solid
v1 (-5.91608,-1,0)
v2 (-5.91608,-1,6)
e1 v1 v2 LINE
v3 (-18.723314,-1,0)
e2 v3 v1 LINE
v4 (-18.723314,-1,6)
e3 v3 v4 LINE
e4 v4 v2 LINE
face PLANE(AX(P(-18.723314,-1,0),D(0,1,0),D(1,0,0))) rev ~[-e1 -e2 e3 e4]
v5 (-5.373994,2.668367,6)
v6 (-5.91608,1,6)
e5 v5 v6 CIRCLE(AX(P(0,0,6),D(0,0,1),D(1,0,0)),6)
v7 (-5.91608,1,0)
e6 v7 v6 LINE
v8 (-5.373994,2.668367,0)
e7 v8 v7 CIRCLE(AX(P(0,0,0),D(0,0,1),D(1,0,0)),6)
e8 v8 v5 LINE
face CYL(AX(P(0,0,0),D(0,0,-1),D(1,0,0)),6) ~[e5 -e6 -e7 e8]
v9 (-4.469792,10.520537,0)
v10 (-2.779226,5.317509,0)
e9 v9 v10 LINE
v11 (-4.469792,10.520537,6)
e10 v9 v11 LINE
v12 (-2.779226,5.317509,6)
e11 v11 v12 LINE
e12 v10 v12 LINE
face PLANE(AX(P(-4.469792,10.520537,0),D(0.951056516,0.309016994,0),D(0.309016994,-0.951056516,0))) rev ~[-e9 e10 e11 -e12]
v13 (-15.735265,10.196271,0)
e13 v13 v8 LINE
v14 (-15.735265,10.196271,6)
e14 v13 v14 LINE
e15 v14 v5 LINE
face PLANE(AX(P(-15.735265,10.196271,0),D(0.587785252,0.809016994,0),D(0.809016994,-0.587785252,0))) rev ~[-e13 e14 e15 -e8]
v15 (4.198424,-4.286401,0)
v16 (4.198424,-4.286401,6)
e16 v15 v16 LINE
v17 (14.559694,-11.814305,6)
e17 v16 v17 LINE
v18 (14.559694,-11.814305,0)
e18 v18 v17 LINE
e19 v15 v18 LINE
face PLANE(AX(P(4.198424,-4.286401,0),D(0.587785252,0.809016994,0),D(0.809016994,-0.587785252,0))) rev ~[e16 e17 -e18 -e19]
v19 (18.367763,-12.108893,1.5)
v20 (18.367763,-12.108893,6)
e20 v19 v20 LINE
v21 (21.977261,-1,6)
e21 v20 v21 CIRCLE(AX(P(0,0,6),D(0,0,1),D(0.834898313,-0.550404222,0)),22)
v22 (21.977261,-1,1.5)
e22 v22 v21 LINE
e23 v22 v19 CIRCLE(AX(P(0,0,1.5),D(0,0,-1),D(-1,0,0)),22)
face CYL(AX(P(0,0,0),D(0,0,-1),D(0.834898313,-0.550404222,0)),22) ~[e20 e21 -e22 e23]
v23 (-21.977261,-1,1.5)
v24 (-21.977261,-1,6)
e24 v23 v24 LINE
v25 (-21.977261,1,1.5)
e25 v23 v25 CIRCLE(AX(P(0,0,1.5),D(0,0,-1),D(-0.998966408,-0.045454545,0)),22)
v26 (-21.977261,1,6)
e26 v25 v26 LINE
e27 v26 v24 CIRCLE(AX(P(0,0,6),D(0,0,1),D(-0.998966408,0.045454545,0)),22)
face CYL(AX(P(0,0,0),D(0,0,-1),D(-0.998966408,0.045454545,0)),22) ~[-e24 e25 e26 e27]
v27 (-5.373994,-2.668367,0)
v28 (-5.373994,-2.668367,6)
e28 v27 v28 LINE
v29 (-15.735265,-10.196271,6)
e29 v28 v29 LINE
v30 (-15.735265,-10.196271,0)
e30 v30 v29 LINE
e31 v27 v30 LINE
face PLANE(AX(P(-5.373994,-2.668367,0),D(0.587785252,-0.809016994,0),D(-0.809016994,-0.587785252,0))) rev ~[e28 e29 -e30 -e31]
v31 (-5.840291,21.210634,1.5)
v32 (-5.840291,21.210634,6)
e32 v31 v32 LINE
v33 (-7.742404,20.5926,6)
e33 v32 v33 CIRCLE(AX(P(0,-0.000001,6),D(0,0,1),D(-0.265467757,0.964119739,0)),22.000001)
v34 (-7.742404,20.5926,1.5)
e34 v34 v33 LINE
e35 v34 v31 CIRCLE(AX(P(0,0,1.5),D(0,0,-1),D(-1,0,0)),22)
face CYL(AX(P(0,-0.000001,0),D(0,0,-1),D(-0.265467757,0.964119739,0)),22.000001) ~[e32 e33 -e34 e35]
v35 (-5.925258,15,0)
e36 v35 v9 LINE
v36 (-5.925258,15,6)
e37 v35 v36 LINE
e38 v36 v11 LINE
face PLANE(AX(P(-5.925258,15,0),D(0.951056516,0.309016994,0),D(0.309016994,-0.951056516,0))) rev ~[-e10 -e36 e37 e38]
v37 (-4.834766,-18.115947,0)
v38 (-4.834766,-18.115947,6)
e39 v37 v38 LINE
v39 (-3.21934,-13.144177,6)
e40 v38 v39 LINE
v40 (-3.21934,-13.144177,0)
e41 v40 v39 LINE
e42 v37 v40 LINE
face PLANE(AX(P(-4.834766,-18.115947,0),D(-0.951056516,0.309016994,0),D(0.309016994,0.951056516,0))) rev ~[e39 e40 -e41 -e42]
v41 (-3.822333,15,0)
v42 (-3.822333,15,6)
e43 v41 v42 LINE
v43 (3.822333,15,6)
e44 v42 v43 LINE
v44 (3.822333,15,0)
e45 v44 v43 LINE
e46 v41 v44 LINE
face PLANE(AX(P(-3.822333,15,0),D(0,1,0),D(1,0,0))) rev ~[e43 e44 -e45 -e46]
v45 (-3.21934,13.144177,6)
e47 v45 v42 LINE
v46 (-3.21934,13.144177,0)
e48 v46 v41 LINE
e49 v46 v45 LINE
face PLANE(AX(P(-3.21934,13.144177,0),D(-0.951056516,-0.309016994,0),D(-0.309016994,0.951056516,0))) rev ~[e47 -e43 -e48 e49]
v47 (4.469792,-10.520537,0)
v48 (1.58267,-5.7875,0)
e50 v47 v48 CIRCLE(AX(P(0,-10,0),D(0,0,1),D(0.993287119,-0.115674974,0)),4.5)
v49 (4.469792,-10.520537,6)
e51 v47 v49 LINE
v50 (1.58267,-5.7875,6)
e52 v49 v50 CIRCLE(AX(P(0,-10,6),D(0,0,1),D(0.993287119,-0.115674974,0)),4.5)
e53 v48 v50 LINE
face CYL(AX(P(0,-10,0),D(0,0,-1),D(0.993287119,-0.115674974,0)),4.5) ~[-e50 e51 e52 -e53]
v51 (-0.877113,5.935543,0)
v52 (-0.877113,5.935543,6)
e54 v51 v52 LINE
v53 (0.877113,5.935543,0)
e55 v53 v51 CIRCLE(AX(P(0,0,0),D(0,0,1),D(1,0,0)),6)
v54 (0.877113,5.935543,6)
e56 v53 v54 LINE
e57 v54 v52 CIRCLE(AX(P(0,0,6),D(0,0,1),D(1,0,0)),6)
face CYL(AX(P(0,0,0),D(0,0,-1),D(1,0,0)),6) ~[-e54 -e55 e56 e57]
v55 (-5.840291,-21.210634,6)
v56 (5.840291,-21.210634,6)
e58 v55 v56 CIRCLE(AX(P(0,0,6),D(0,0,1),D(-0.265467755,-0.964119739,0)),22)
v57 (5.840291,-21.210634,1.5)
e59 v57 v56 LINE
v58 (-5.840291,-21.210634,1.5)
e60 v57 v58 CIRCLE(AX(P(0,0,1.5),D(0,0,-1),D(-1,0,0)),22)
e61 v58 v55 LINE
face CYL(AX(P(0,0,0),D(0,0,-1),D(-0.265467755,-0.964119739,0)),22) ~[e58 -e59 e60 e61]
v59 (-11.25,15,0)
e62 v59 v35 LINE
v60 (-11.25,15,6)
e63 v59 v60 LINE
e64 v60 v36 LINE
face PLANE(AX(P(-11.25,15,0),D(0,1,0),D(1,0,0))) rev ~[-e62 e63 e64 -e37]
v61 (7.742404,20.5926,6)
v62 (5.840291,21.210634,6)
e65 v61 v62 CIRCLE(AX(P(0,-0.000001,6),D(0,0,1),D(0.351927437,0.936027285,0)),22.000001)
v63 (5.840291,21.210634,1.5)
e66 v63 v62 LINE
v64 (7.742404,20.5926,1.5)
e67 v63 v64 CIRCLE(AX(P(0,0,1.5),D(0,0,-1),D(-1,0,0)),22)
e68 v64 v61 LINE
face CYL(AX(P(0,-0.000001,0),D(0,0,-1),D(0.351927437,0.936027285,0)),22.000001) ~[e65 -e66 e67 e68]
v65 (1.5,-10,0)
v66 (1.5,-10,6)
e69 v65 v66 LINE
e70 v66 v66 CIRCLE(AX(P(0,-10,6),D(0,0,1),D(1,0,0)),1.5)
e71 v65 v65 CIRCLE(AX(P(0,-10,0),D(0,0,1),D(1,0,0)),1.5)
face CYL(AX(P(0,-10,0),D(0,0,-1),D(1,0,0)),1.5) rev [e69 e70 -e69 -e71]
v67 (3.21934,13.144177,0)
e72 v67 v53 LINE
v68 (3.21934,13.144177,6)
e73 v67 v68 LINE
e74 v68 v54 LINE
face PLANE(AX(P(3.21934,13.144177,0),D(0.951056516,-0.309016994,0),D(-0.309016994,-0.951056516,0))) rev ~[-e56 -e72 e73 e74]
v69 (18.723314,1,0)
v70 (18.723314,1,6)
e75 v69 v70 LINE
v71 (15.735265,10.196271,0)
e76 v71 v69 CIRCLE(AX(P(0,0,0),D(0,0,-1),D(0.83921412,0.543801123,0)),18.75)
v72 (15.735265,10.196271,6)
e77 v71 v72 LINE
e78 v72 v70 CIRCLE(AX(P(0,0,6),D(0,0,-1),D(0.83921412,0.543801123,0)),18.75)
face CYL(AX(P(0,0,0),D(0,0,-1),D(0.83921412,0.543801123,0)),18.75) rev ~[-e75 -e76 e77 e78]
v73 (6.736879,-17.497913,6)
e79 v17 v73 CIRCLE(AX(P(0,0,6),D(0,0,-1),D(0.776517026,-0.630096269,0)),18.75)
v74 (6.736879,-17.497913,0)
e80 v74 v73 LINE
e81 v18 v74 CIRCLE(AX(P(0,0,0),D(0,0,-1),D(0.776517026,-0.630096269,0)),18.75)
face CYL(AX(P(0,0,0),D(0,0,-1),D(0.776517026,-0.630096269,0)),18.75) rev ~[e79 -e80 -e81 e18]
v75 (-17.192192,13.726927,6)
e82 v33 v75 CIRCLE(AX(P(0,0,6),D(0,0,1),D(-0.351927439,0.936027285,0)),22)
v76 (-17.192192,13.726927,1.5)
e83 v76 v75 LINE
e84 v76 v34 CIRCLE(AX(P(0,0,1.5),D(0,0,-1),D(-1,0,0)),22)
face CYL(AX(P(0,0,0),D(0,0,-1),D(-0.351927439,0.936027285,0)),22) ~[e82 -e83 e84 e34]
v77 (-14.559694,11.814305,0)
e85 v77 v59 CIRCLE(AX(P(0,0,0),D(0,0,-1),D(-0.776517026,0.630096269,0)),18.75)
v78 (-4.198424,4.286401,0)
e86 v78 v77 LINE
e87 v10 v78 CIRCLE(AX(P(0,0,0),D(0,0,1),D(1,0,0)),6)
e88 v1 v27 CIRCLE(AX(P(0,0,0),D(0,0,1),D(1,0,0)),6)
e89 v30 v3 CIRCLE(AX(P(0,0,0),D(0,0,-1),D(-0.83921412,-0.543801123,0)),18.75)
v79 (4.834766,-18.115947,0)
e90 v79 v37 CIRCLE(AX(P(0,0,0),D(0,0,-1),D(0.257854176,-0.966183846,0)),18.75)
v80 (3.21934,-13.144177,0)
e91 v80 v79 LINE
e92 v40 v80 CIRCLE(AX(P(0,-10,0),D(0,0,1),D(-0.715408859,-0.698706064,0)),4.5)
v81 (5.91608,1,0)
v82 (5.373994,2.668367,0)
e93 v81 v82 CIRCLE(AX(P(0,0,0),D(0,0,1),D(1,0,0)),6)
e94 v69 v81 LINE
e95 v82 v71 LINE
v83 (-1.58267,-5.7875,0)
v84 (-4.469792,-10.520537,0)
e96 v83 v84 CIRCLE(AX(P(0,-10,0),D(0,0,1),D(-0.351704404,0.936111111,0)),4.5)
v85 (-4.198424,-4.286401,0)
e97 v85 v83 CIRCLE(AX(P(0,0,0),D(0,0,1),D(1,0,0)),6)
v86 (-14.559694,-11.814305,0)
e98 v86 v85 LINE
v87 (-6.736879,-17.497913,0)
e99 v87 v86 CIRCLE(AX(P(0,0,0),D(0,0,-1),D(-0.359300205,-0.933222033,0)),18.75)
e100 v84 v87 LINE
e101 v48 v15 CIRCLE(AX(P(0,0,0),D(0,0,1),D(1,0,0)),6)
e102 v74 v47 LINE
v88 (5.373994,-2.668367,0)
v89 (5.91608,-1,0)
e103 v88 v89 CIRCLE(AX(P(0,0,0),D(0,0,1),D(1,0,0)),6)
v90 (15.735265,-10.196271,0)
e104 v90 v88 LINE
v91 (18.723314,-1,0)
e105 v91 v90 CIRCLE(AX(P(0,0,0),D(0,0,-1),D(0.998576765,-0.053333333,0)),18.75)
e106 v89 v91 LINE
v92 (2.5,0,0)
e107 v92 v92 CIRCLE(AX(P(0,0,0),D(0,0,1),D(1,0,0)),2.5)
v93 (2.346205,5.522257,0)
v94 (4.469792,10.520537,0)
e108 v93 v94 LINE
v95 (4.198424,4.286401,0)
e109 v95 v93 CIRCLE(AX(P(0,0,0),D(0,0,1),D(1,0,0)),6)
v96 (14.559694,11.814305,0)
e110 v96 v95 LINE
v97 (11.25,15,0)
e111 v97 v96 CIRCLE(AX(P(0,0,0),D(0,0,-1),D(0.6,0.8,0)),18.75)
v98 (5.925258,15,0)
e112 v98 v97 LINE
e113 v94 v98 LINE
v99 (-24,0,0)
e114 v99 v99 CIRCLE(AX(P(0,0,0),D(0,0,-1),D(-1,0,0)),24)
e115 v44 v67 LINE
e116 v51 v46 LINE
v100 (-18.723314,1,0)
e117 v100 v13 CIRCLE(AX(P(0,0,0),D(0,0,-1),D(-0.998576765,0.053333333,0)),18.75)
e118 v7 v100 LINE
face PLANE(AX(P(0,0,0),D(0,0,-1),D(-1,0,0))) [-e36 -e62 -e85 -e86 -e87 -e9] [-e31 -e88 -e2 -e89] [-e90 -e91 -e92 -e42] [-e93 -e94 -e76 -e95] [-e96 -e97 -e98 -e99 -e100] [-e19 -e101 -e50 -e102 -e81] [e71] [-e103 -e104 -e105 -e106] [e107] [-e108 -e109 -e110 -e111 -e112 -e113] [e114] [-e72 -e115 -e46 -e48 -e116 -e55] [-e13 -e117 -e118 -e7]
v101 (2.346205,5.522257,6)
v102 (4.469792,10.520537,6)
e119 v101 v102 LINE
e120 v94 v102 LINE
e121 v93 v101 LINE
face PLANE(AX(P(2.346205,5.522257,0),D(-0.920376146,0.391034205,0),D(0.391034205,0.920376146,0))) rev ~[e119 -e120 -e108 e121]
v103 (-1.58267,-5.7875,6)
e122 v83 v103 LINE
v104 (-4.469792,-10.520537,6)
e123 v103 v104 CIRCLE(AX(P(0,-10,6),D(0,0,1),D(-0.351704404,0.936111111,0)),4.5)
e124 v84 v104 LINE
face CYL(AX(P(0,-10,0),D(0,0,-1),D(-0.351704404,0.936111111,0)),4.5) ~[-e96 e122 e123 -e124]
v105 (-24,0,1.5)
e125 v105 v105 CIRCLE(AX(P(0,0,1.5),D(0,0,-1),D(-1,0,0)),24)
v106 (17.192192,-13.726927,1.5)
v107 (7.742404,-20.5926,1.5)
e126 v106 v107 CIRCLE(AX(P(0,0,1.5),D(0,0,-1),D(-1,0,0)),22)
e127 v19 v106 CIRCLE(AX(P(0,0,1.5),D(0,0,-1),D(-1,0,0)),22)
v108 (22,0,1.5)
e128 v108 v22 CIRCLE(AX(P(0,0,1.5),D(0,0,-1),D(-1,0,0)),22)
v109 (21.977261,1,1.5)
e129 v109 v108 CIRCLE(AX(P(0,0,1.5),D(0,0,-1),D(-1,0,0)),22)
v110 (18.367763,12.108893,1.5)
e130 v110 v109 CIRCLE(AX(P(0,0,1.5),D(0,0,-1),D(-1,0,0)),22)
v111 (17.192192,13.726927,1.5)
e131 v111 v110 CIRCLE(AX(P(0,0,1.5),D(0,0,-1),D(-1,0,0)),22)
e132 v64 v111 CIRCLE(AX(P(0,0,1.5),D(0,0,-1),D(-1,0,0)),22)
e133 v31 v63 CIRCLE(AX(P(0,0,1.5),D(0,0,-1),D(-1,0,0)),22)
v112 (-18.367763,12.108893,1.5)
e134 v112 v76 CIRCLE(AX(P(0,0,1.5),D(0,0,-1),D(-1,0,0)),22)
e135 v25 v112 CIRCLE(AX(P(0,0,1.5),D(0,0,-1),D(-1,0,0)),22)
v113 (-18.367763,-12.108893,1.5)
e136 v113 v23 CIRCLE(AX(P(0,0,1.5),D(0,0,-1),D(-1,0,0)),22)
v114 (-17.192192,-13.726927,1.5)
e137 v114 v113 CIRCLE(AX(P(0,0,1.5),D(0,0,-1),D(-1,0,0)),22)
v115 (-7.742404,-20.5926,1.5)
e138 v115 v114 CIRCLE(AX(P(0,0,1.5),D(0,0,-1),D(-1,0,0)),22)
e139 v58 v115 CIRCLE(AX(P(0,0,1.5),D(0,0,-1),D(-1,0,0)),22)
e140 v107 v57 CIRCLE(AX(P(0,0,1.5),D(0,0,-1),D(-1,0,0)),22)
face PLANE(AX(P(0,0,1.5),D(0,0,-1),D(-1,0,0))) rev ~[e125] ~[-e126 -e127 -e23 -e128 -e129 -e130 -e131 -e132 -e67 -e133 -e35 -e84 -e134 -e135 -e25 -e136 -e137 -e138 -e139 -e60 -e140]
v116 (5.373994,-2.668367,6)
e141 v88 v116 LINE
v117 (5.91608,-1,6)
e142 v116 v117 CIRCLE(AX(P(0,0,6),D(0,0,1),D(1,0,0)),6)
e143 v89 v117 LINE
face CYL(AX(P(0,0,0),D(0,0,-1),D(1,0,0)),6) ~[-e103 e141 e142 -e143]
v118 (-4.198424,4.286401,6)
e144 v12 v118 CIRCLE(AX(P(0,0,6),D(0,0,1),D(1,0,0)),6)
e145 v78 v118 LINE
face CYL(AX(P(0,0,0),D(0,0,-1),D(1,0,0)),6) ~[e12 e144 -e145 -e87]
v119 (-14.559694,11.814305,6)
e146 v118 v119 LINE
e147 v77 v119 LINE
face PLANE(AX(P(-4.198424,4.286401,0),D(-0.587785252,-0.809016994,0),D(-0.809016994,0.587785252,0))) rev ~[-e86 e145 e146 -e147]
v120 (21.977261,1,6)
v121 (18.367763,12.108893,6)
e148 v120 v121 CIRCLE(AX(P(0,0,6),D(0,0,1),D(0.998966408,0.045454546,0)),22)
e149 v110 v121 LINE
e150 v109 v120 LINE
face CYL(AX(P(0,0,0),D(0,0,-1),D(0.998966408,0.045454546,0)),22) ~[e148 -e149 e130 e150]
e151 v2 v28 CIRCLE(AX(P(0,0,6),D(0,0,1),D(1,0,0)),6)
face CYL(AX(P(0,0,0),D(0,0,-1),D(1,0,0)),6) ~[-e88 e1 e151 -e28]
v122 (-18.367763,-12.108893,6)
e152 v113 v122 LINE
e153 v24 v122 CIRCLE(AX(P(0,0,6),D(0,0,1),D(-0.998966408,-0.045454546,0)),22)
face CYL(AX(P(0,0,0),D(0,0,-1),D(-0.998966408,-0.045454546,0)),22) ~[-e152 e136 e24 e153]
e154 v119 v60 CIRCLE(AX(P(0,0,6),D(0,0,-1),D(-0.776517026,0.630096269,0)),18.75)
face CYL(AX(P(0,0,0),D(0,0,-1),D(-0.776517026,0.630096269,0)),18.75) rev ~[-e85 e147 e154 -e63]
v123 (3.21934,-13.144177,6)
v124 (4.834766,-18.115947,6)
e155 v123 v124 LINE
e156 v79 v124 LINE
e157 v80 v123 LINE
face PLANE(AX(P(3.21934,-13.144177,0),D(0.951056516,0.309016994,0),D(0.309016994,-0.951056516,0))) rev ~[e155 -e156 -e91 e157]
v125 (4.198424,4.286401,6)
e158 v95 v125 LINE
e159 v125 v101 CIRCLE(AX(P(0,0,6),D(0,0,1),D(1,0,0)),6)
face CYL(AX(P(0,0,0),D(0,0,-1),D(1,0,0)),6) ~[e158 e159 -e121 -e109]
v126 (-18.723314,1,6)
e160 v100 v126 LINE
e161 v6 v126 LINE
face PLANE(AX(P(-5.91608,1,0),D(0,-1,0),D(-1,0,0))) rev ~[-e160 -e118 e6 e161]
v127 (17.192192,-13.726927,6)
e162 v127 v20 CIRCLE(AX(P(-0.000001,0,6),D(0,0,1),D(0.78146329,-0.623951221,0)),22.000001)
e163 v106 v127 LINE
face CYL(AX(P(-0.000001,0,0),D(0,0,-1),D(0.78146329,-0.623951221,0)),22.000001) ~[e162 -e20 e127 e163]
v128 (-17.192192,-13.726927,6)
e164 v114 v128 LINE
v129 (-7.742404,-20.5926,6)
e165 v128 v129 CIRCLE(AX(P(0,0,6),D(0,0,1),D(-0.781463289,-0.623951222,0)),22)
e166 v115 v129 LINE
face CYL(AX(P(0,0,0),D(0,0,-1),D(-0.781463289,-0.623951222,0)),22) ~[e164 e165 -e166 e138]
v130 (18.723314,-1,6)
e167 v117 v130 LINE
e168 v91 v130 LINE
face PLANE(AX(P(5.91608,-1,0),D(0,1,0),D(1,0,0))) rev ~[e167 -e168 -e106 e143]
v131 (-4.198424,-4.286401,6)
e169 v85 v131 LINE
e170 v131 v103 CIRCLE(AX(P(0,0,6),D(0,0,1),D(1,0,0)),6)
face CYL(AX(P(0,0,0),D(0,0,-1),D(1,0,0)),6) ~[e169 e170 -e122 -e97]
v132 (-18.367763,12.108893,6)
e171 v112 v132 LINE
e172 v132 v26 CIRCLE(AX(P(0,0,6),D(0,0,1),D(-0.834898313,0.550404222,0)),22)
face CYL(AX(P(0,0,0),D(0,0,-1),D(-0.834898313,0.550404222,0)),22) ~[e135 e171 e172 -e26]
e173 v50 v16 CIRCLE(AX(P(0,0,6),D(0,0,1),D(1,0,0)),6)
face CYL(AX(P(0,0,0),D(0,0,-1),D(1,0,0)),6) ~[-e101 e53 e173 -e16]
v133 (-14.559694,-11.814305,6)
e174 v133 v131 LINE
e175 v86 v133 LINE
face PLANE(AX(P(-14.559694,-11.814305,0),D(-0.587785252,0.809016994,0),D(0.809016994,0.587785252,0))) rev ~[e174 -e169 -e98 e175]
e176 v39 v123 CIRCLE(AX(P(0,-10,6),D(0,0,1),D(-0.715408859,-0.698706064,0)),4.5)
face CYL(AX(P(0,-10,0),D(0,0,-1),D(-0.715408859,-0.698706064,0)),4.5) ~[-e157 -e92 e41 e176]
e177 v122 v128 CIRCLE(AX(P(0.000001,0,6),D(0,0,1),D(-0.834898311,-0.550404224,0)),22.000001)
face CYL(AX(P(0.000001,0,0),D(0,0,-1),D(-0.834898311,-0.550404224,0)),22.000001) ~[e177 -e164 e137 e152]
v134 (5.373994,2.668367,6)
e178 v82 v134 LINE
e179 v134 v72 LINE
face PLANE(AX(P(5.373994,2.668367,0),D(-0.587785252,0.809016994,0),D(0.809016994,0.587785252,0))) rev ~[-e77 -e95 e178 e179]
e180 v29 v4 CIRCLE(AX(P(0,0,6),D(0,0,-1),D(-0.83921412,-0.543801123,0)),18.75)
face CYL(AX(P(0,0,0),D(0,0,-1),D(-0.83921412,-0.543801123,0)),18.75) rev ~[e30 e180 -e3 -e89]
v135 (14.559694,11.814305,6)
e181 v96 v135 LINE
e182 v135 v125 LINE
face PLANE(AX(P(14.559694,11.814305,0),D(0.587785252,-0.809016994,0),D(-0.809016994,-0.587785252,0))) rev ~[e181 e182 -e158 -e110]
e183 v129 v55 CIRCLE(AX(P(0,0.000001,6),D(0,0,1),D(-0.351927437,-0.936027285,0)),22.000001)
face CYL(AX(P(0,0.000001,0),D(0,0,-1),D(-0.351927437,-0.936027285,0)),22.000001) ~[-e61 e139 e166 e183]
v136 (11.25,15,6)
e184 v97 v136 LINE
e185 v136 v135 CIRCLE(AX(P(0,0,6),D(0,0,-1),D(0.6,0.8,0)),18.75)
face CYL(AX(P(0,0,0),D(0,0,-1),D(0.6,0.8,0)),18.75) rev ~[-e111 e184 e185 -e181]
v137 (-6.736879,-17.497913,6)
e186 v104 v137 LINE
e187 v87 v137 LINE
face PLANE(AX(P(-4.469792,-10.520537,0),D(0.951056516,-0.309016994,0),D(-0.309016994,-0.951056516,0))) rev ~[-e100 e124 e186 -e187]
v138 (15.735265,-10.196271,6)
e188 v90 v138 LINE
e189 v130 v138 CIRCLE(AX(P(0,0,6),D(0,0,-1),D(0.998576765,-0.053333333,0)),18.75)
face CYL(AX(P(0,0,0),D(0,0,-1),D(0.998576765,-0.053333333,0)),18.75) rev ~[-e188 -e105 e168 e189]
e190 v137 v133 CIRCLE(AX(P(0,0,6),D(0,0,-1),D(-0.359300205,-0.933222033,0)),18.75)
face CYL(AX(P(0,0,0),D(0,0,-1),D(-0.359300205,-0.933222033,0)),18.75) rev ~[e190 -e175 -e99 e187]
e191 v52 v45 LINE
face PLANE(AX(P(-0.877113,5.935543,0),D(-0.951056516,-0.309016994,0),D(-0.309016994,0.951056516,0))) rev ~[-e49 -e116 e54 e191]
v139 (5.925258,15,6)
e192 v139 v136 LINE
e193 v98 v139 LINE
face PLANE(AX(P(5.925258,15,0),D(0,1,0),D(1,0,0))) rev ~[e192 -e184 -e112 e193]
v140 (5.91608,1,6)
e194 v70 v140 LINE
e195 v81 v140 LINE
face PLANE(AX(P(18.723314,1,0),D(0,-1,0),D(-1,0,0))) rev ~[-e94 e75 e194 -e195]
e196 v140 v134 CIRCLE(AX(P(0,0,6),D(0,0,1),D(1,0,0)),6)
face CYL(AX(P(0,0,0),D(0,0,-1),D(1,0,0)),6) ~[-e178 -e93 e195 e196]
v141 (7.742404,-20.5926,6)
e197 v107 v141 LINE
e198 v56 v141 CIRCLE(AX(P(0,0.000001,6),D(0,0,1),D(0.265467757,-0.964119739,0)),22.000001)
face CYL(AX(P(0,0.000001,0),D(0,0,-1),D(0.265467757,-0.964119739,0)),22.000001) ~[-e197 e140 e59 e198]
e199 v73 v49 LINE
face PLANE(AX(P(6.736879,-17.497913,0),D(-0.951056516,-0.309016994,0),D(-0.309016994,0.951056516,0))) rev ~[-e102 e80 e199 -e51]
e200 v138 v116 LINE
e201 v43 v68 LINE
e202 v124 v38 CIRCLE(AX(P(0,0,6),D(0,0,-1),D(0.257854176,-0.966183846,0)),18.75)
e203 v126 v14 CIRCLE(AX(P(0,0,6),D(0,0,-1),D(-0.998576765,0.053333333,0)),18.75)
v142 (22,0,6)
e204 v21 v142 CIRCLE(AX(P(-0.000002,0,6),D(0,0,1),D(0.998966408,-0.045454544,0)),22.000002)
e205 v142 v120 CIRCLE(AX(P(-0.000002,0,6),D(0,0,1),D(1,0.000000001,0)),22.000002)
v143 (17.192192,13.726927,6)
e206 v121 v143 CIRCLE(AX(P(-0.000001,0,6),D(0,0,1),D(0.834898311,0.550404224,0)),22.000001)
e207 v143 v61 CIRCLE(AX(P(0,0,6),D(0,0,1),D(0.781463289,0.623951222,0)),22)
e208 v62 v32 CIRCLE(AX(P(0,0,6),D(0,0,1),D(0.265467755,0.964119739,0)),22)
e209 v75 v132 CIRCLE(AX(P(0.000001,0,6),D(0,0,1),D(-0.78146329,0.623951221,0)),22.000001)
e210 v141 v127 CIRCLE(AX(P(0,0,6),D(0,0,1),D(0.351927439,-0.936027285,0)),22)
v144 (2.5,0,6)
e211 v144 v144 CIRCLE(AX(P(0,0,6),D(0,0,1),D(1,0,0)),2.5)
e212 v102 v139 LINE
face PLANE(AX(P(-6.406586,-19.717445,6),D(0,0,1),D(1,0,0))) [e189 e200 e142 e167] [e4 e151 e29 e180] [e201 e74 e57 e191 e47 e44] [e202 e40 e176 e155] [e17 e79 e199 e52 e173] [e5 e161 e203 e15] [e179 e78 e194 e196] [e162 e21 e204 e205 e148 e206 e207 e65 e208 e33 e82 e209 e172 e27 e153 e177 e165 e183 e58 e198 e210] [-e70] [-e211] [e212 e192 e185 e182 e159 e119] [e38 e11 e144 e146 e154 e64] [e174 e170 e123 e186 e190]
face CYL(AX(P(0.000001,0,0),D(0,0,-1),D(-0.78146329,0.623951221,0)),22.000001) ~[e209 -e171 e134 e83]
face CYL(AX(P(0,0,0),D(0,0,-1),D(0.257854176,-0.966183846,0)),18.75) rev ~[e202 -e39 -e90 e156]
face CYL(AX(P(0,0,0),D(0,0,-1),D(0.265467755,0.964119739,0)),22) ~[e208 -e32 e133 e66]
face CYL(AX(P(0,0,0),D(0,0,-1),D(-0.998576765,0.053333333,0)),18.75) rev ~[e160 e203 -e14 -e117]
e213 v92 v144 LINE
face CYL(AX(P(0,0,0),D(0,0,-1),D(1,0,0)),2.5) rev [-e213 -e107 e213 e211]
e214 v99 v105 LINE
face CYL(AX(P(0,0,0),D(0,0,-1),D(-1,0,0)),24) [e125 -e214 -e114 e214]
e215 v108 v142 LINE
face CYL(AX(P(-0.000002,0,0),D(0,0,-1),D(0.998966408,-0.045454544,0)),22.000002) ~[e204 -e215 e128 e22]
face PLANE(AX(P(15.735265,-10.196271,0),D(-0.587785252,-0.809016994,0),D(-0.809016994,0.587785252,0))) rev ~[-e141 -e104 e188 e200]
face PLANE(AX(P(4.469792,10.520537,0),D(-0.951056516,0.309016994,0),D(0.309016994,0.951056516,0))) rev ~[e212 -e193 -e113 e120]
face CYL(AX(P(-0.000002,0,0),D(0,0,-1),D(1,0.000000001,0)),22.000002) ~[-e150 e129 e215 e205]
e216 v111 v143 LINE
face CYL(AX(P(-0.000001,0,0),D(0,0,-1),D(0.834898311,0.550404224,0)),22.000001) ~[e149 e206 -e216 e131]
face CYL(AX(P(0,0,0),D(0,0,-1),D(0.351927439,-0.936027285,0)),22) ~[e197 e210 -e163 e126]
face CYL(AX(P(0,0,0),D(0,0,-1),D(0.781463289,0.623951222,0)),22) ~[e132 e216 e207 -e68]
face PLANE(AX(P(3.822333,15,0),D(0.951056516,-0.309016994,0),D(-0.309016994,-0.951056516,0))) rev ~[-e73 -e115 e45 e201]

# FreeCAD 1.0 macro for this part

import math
import FreeCAD as App
import Part
import Sketcher
from FreeCAD import Vector
Q = App.Units.Quantity

doc = App.newDocument("Part")
body = doc.addObject("PartDesign::Body", "Body")

sketch1 = body.newObject("Sketcher::SketchObject", "Sketch")
sketch1.AttachmentSupport = (doc.getObject("XY_Plane"), [""])
sketch1.MapMode = "FlatFace"
sketch1.addGeometry(Part.ArcOfCircle(Part.Circle(Vector(0, 0, 0), Vector(0, 0, 1), 22), math.radians(-2.61), math.radians(0)), False)
sketch1.addGeometry(Part.ArcOfCircle(Part.Circle(Vector(0, 0, 0), Vector(0, 0, 1), 22), math.radians(0), math.radians(2.61)), False)
sketch1.addGeometry(Part.ArcOfCircle(Part.Circle(Vector(0, 0, 0), Vector(0, 0, 1), 22), math.radians(3), math.radians(33)), False)
sketch1.addGeometry(Part.ArcOfCircle(Part.Circle(Vector(0, 0, 0), Vector(0, 0, 1), 22), math.radians(33.39), math.radians(38.61)), False)
sketch1.addGeometry(Part.ArcOfCircle(Part.Circle(Vector(0, 0, 0), Vector(0, 0, 1), 22), math.radians(39), math.radians(69)), False)
sketch1.addGeometry(Part.ArcOfCircle(Part.Circle(Vector(0, 0, 0), Vector(0, 0, 1), 22), math.radians(69.39), math.radians(74.61)), False)
sketch1.addGeometry(Part.ArcOfCircle(Part.Circle(Vector(0, 0, 0), Vector(0, 0, 1), 22), math.radians(75), math.radians(105)), False)
sketch1.addGeometry(Part.ArcOfCircle(Part.Circle(Vector(0, 0, 0), Vector(0, 0, 1), 22), math.radians(105.39), math.radians(110.61)), False)
sketch1.addGeometry(Part.ArcOfCircle(Part.Circle(Vector(0, 0, 0), Vector(0, 0, 1), 22), math.radians(111), math.radians(141)), False)
sketch1.addGeometry(Part.ArcOfCircle(Part.Circle(Vector(0, 0, 0), Vector(0, 0, 1), 22), math.radians(141.39), math.radians(146.61)), False)
sketch1.addGeometry(Part.ArcOfCircle(Part.Circle(Vector(0, 0, 0), Vector(0, 0, 1), 22), math.radians(147), math.radians(177)), False)
sketch1.addGeometry(Part.ArcOfCircle(Part.Circle(Vector(0, 0, 0), Vector(0, 0, 1), 22), math.radians(177.39), math.radians(182.61)), False)
sketch1.addGeometry(Part.ArcOfCircle(Part.Circle(Vector(0, 0, 0), Vector(0, 0, 1), 22), math.radians(-177), math.radians(-147)), False)
sketch1.addGeometry(Part.ArcOfCircle(Part.Circle(Vector(0, 0, 0), Vector(0, 0, 1), 22), math.radians(-146.61), math.radians(-141.39)), False)
sketch1.addGeometry(Part.ArcOfCircle(Part.Circle(Vector(0, 0, 0), Vector(0, 0, 1), 22), math.radians(-141), math.radians(-111)), False)
sketch1.addGeometry(Part.ArcOfCircle(Part.Circle(Vector(0, 0, 0), Vector(0, 0, 1), 22), math.radians(-110.61), math.radians(-105.39)), False)
sketch1.addGeometry(Part.ArcOfCircle(Part.Circle(Vector(0, 0, 0), Vector(0, 0, 1), 22), math.radians(-105), math.radians(-75)), False)
sketch1.addGeometry(Part.ArcOfCircle(Part.Circle(Vector(0, 0, 0), Vector(0, 0, 1), 22), math.radians(-74.61), math.radians(-69.39)), False)
sketch1.addGeometry(Part.ArcOfCircle(Part.Circle(Vector(0, 0, 0), Vector(0, 0, 1), 22), math.radians(-69), math.radians(-39)), False)
sketch1.addGeometry(Part.ArcOfCircle(Part.Circle(Vector(0, 0, 0), Vector(0, 0, 1), 22), math.radians(-38.61), math.radians(-33.39)), False)
sketch1.addGeometry(Part.ArcOfCircle(Part.Circle(Vector(0, 0, 0), Vector(0, 0, 1), 22), math.radians(-33), math.radians(-3)), False)
sketch1.addGeometry(Part.ArcOfCircle(Part.Circle(Vector(0, 0, 0), Vector(0, 0, 1), 6), math.radians(9.59), math.radians(26.41)), False)
sketch1.addGeometry(Part.LineSegment(Vector(5.4, 2.7, 0), Vector(15.7, 10.2, 0)), False)
sketch1.addGeometry(Part.ArcOfCircle(Part.Circle(Vector(0, 0, 0), Vector(0, 0, 1), 18.7), math.radians(3), math.radians(33)), False)
sketch1.addGeometry(Part.LineSegment(Vector(18.7, 1, 0), Vector(5.9, 1, 0)), False)
sketch1.addGeometry(Part.ArcOfCircle(Part.Circle(Vector(0, 0, 0), Vector(0, 0, 1), 6), math.radians(46), math.radians(67)), False)
sketch1.addGeometry(Part.LineSegment(Vector(2.3, 5.5, 0), Vector(4.5, 10.5, 0)), False)
sketch1.addGeometry(Part.LineSegment(Vector(4.5, 10.5, 0), Vector(5.9, 15, 0)), False)
sketch1.addGeometry(Part.LineSegment(Vector(5.9, 15, 0), Vector(11.2, 15, 0)), False)
sketch1.addGeometry(Part.ArcOfCircle(Part.Circle(Vector(0, 0, 0), Vector(0, 0, 1), 18.7), math.radians(39.06), math.radians(53.13)), False)
sketch1.addGeometry(Part.LineSegment(Vector(14.6, 11.8, 0), Vector(4.2, 4.3, 0)), False)
sketch1.addGeometry(Part.ArcOfCircle(Part.Circle(Vector(0, 0, 0), Vector(0, 0, 1), 6), math.radians(81.59), math.radians(98.41)), False)
sketch1.addGeometry(Part.LineSegment(Vector(-0.9, 5.9, 0), Vector(-3.2, 13.1, 0)), False)
sketch1.addGeometry(Part.LineSegment(Vector(-3.2, 13.1, 0), Vector(-3.8, 15, 0)), False)
sketch1.addGeometry(Part.LineSegment(Vector(-3.8, 15, 0), Vector(3.8, 15, 0)), False)
sketch1.addGeometry(Part.LineSegment(Vector(3.8, 15, 0), Vector(3.2, 13.1, 0)), False)
sketch1.addGeometry(Part.LineSegment(Vector(3.2, 13.1, 0), Vector(0.9, 5.9, 0)), False)
sketch1.addGeometry(Part.ArcOfCircle(Part.Circle(Vector(0, 0, 0), Vector(0, 0, 1), 6), math.radians(117.59), math.radians(134.41)), False)
sketch1.addGeometry(Part.LineSegment(Vector(-4.2, 4.3, 0), Vector(-14.6, 11.8, 0)), False)
sketch1.addGeometry(Part.ArcOfCircle(Part.Circle(Vector(0, 0, 0), Vector(0, 0, 1), 18.7), math.radians(126.87), math.radians(140.94)), False)
sketch1.addGeometry(Part.LineSegment(Vector(-11.2, 15, 0), Vector(-5.9, 15, 0)), False)
sketch1.addGeometry(Part.LineSegment(Vector(-5.9, 15, 0), Vector(-4.5, 10.5, 0)), False)
sketch1.addGeometry(Part.LineSegment(Vector(-4.5, 10.5, 0), Vector(-2.8, 5.3, 0)), False)
sketch1.addGeometry(Part.ArcOfCircle(Part.Circle(Vector(0, 0, 0), Vector(0, 0, 1), 6), math.radians(153.59), math.radians(170.41)), False)
sketch1.addGeometry(Part.LineSegment(Vector(-5.9, 1, 0), Vector(-18.7, 1, 0)), False)
sketch1.addGeometry(Part.ArcOfCircle(Part.Circle(Vector(0, 0, 0), Vector(0, 0, 1), 18.7), math.radians(147), math.radians(177)), False)
sketch1.addGeometry(Part.LineSegment(Vector(-15.7, 10.2, 0), Vector(-5.4, 2.7, 0)), False)
sketch1.addGeometry(Part.ArcOfCircle(Part.Circle(Vector(0, 0, 0), Vector(0, 0, 1), 6), math.radians(-170.41), math.radians(-153.59)), False)
sketch1.addGeometry(Part.LineSegment(Vector(-5.4, -2.7, 0), Vector(-15.7, -10.2, 0)), False)
sketch1.addGeometry(Part.ArcOfCircle(Part.Circle(Vector(0, 0, 0), Vector(0, 0, 1), 18.7), math.radians(-177), math.radians(-147)), False)
sketch1.addGeometry(Part.LineSegment(Vector(-18.7, -1, 0), Vector(-5.9, -1, 0)), False)
sketch1.addGeometry(Part.ArcOfCircle(Part.Circle(Vector(0, 0, 0), Vector(0, 0, 1), 6), math.radians(-134), math.radians(-105)), False)
sketch1.addGeometry(Part.ArcOfCircle(Part.Circle(Vector(0, -10, 0), Vector(0, 0, 1), 4.5), math.radians(111), math.radians(187)), False)
sketch1.addGeometry(Part.LineSegment(Vector(-4.5, -10.5, 0), Vector(-6.7, -17.5, 0)), False)
sketch1.addGeometry(Part.ArcOfCircle(Part.Circle(Vector(0, 0, 0), Vector(0, 0, 1), 18.8), math.radians(-141), math.radians(-111)), False)
sketch1.addGeometry(Part.LineSegment(Vector(-14.6, -11.8, 0), Vector(-4.2, -4.3, 0)), False)
sketch1.addGeometry(Part.ArcOfCircle(Part.Circle(Vector(0, 0, 0), Vector(0, 0, 1), 6), math.radians(-75), math.radians(-46)), False)
sketch1.addGeometry(Part.LineSegment(Vector(4.2, -4.3, 0), Vector(14.6, -11.8, 0)), False)
sketch1.addGeometry(Part.ArcOfCircle(Part.Circle(Vector(0, 0, 0), Vector(0, 0, 1), 18.8), math.radians(-69), math.radians(-39)), False)
sketch1.addGeometry(Part.LineSegment(Vector(6.7, -17.5, 0), Vector(4.5, -10.5, 0)), False)
sketch1.addGeometry(Part.ArcOfCircle(Part.Circle(Vector(0, -10, 0), Vector(0, 0, 1), 4.5), math.radians(-7), math.radians(69)), False)
sketch1.addGeometry(Part.ArcOfCircle(Part.Circle(Vector(0, 0, 0), Vector(0, 0, 1), 6), math.radians(-26.41), math.radians(-9.59)), False)
sketch1.addGeometry(Part.LineSegment(Vector(5.9, -1, 0), Vector(18.7, -1, 0)), False)
sketch1.addGeometry(Part.ArcOfCircle(Part.Circle(Vector(0, 0, 0), Vector(0, 0, 1), 18.7), math.radians(-33), math.radians(-3)), False)
sketch1.addGeometry(Part.LineSegment(Vector(15.7, -10.2, 0), Vector(5.4, -2.7, 0)), False)
sketch1.addGeometry(Part.Circle(Vector(0, 0, 0), Vector(0, 0, 1), 2.5), False)
sketch1.addGeometry(Part.Circle(Vector(0, -10, 0), Vector(0, 0, 1), 1.5), False)
sketch1.addGeometry(Part.ArcOfCircle(Part.Circle(Vector(0, -10, 0), Vector(0, 0, 1), 4.5), math.radians(-136), math.radians(-44)), False)
sketch1.addGeometry(Part.LineSegment(Vector(3.2, -13.1, 0), Vector(4.8, -18.1, 0)), False)
sketch1.addGeometry(Part.ArcOfCircle(Part.Circle(Vector(0, 0, 0), Vector(0, 0, 1), 18.7), math.radians(-105), math.radians(-75)), False)
sketch1.addGeometry(Part.LineSegment(Vector(-4.8, -18.1, 0), Vector(-3.2, -13.1, 0)), False)
sketch1.addConstraint(Sketcher.Constraint("Tangent", 0, 2, 1, 1))
sketch1.addConstraint(Sketcher.Constraint("Tangent", 1, 2, 2, 1))
sketch1.addConstraint(Sketcher.Constraint("Tangent", 2, 2, 3, 1))
sketch1.addConstraint(Sketcher.Constraint("Tangent", 3, 2, 4, 1))
sketch1.addConstraint(Sketcher.Constraint("Tangent", 4, 2, 5, 1))
sketch1.addConstraint(Sketcher.Constraint("Tangent", 5, 2, 6, 1))
sketch1.addConstraint(Sketcher.Constraint("Tangent", 6, 2, 7, 1))
sketch1.addConstraint(Sketcher.Constraint("Tangent", 7, 2, 8, 1))
sketch1.addConstraint(Sketcher.Constraint("Tangent", 8, 2, 9, 1))
sketch1.addConstraint(Sketcher.Constraint("Tangent", 9, 2, 10, 1))
sketch1.addConstraint(Sketcher.Constraint("Tangent", 10, 2, 11, 1))
sketch1.addConstraint(Sketcher.Constraint("Tangent", 11, 2, 12, 1))
sketch1.addConstraint(Sketcher.Constraint("Tangent", 12, 2, 13, 1))
sketch1.addConstraint(Sketcher.Constraint("Tangent", 13, 2, 14, 1))
sketch1.addConstraint(Sketcher.Constraint("Tangent", 14, 2, 15, 1))
sketch1.addConstraint(Sketcher.Constraint("Tangent", 15, 2, 16, 1))
sketch1.addConstraint(Sketcher.Constraint("Tangent", 16, 2, 17, 1))
sketch1.addConstraint(Sketcher.Constraint("Tangent", 17, 2, 18, 1))
sketch1.addConstraint(Sketcher.Constraint("Tangent", 18, 2, 19, 1))
sketch1.addConstraint(Sketcher.Constraint("Tangent", 19, 2, 20, 1))
sketch1.addConstraint(Sketcher.Constraint("Tangent", 20, 2, 0, 1))
sketch1.addConstraint(Sketcher.Constraint("Coincident", 21, 2, 22, 1))
sketch1.addConstraint(Sketcher.Constraint("Coincident", 22, 2, 23, 2))
sketch1.addConstraint(Sketcher.Constraint("Coincident", 23, 1, 24, 1))
sketch1.addConstraint(Sketcher.Constraint("Coincident", 24, 2, 21, 1))
sketch1.addConstraint(Sketcher.Constraint("Coincident", 25, 2, 26, 1))
sketch1.addConstraint(Sketcher.Constraint("Coincident", 26, 2, 27, 1))
sketch1.addConstraint(Sketcher.Constraint("Coincident", 27, 2, 28, 1))
sketch1.addConstraint(Sketcher.Constraint("Coincident", 28, 2, 29, 2))
sketch1.addConstraint(Sketcher.Constraint("Coincident", 29, 1, 30, 1))
sketch1.addConstraint(Sketcher.Constraint("Coincident", 30, 2, 25, 1))
sketch1.addConstraint(Sketcher.Constraint("Coincident", 31, 2, 32, 1))
sketch1.addConstraint(Sketcher.Constraint("Coincident", 32, 2, 33, 1))
sketch1.addConstraint(Sketcher.Constraint("Coincident", 33, 2, 34, 1))
sketch1.addConstraint(Sketcher.Constraint("Coincident", 34, 2, 35, 1))
sketch1.addConstraint(Sketcher.Constraint("Coincident", 35, 2, 36, 1))
sketch1.addConstraint(Sketcher.Constraint("Coincident", 36, 2, 31, 1))
sketch1.addConstraint(Sketcher.Constraint("Coincident", 37, 2, 38, 1))
sketch1.addConstraint(Sketcher.Constraint("Coincident", 38, 2, 39, 2))
sketch1.addConstraint(Sketcher.Constraint("Coincident", 39, 1, 40, 1))
sketch1.addConstraint(Sketcher.Constraint("Coincident", 40, 2, 41, 1))
sketch1.addConstraint(Sketcher.Constraint("Coincident", 41, 2, 42, 1))
sketch1.addConstraint(Sketcher.Constraint("Coincident", 42, 2, 37, 1))
sketch1.addConstraint(Sketcher.Constraint("Coincident", 43, 2, 44, 1))
sketch1.addConstraint(Sketcher.Constraint("Coincident", 44, 2, 45, 2))
sketch1.addConstraint(Sketcher.Constraint("Coincident", 45, 1, 46, 1))
sketch1.addConstraint(Sketcher.Constraint("Coincident", 46, 2, 43, 1))
sketch1.addConstraint(Sketcher.Constraint("Coincident", 47, 2, 48, 1))
sketch1.addConstraint(Sketcher.Constraint("Coincident", 48, 2, 49, 2))
sketch1.addConstraint(Sketcher.Constraint("Coincident", 49, 1, 50, 1))
sketch1.addConstraint(Sketcher.Constraint("Coincident", 50, 2, 47, 1))
sketch1.addConstraint(Sketcher.Constraint("Coincident", 51, 2, 52, 1))
sketch1.addConstraint(Sketcher.Constraint("Coincident", 52, 2, 53, 1))
sketch1.addConstraint(Sketcher.Constraint("Coincident", 53, 2, 54, 2))
sketch1.addConstraint(Sketcher.Constraint("Coincident", 54, 1, 55, 1))
sketch1.addConstraint(Sketcher.Constraint("Coincident", 55, 2, 51, 1))
sketch1.addConstraint(Sketcher.Constraint("Coincident", 56, 2, 57, 1))
sketch1.addConstraint(Sketcher.Constraint("Coincident", 57, 2, 58, 2))
sketch1.addConstraint(Sketcher.Constraint("Coincident", 58, 1, 59, 1))
sketch1.addConstraint(Sketcher.Constraint("Coincident", 59, 2, 60, 1))
sketch1.addConstraint(Sketcher.Constraint("Coincident", 60, 2, 56, 1))
sketch1.addConstraint(Sketcher.Constraint("Coincident", 61, 2, 62, 1))
sketch1.addConstraint(Sketcher.Constraint("Coincident", 62, 2, 63, 2))
sketch1.addConstraint(Sketcher.Constraint("Coincident", 63, 1, 64, 1))
sketch1.addConstraint(Sketcher.Constraint("Coincident", 64, 2, 61, 1))
sketch1.addConstraint(Sketcher.Constraint("Coincident", 67, 2, 68, 1))
sketch1.addConstraint(Sketcher.Constraint("Coincident", 68, 2, 69, 2))
sketch1.addConstraint(Sketcher.Constraint("Coincident", 69, 1, 70, 1))
sketch1.addConstraint(Sketcher.Constraint("Coincident", 70, 2, 67, 1))
sketch1.addConstraint(Sketcher.Constraint("Horizontal", 24))
sketch1.addConstraint(Sketcher.Constraint("Horizontal", 28))
sketch1.addConstraint(Sketcher.Constraint("Horizontal", 34))
sketch1.addConstraint(Sketcher.Constraint("Horizontal", 40))
sketch1.addConstraint(Sketcher.Constraint("Horizontal", 44))
sketch1.addConstraint(Sketcher.Constraint("Horizontal", 50))
sketch1.addConstraint(Sketcher.Constraint("Horizontal", 62))
sketch1.addConstraint(Sketcher.Constraint("Coincident", 0, 3, -1, 1))
sketch1.addConstraint(Sketcher.Constraint("Coincident", 2, 3, -1, 1))
sketch1.addConstraint(Sketcher.Constraint("Coincident", 4, 3, -1, 1))
sketch1.addConstraint(Sketcher.Constraint("Coincident", 6, 3, -1, 1))
sketch1.addConstraint(Sketcher.Constraint("Coincident", 8, 3, -1, 1))
sketch1.addConstraint(Sketcher.Constraint("Coincident", 10, 3, -1, 1))
sketch1.addConstraint(Sketcher.Constraint("Coincident", 12, 3, -1, 1))
sketch1.addConstraint(Sketcher.Constraint("Coincident", 14, 3, -1, 1))
sketch1.addConstraint(Sketcher.Constraint("Coincident", 16, 3, -1, 1))
sketch1.addConstraint(Sketcher.Constraint("Coincident", 18, 3, -1, 1))
sketch1.addConstraint(Sketcher.Constraint("Coincident", 21, 3, -1, 1))
sketch1.addConstraint(Sketcher.Constraint("Coincident", 23, 3, -1, 1))
sketch1.addConstraint(Sketcher.Constraint("Coincident", 25, 3, -1, 1))
sketch1.addConstraint(Sketcher.Constraint("Coincident", 29, 3, -1, 1))
sketch1.addConstraint(Sketcher.Constraint("Coincident", 31, 3, -1, 1))
sketch1.addConstraint(Sketcher.Constraint("Coincident", 37, 3, -1, 1))
sketch1.addConstraint(Sketcher.Constraint("Coincident", 39, 3, -1, 1))
sketch1.addConstraint(Sketcher.Constraint("Coincident", 43, 3, -1, 1))
sketch1.addConstraint(Sketcher.Constraint("Coincident", 45, 3, -1, 1))
sketch1.addConstraint(Sketcher.Constraint("Coincident", 47, 3, -1, 1))
sketch1.addConstraint(Sketcher.Constraint("Coincident", 49, 3, -1, 1))
sketch1.addConstraint(Sketcher.Constraint("Coincident", 51, 3, -1, 1))
sketch1.addConstraint(Sketcher.Constraint("Coincident", 54, 3, -1, 1))
sketch1.addConstraint(Sketcher.Constraint("Coincident", 56, 3, -1, 1))
sketch1.addConstraint(Sketcher.Constraint("Coincident", 58, 3, -1, 1))
sketch1.addConstraint(Sketcher.Constraint("Coincident", 61, 3, -1, 1))
sketch1.addConstraint(Sketcher.Constraint("Coincident", 63, 3, -1, 1))
sketch1.addConstraint(Sketcher.Constraint("Coincident", 65, 3, -1, 1))
sketch1.addConstraint(Sketcher.Constraint("Coincident", 69, 3, -1, 1))
sketch1.addConstraint(Sketcher.Constraint("Coincident", 60, 3, 52, 3))
sketch1.addConstraint(Sketcher.Constraint("Coincident", 66, 3, 52, 3))
sketch1.addConstraint(Sketcher.Constraint("Coincident", 67, 3, 52, 3))
sketch1.addConstraint(Sketcher.Constraint("Equal", 21, 25))
sketch1.addConstraint(Sketcher.Constraint("Equal", 23, 29))
sketch1.addConstraint(Sketcher.Constraint("Equal", 25, 31))
sketch1.addConstraint(Sketcher.Constraint("Equal", 31, 37))
sketch1.addConstraint(Sketcher.Constraint("Equal", 29, 39))
sketch1.addConstraint(Sketcher.Constraint("Equal", 37, 43))
sketch1.addConstraint(Sketcher.Constraint("Equal", 39, 45))
sketch1.addConstraint(Sketcher.Constraint("Equal", 43, 47))
sketch1.addConstraint(Sketcher.Constraint("Equal", 45, 49))
sketch1.addConstraint(Sketcher.Constraint("Equal", 47, 51))
sketch1.addConstraint(Sketcher.Constraint("Equal", 49, 54))
sketch1.addConstraint(Sketcher.Constraint("Equal", 51, 56))
sketch1.addConstraint(Sketcher.Constraint("Equal", 54, 58))
sketch1.addConstraint(Sketcher.Constraint("Equal", 52, 60))
sketch1.addConstraint(Sketcher.Constraint("Equal", 56, 61))
sketch1.addConstraint(Sketcher.Constraint("Equal", 58, 63))
sketch1.addConstraint(Sketcher.Constraint("Equal", 60, 67))
sketch1.addConstraint(Sketcher.Constraint("Equal", 63, 69))
sketch1.addConstraint(Sketcher.Constraint("Symmetric", 26, 2, 52, 2, -1, 1))
sketch1.addConstraint(Sketcher.Constraint("Symmetric", 41, 2, 59, 2, -1, 1))
sketch1.addConstraint(Sketcher.Constraint("Symmetric", 32, 2, 67, 2, -1, 1))
sketch1.addConstraint(Sketcher.Constraint("Symmetric", 35, 2, 70, 2, -1, 1))
sketch1.addConstraint(Sketcher.Constraint("Symmetric", 32, 2, 35, 2, -2))
sketch1.addConstraint(Sketcher.Constraint("Symmetric", 27, 2, 40, 2, -2))
sketch1.addConstraint(Sketcher.Constraint("PointOnObject", 0, 2, -1))
sketch1.addConstraint(Sketcher.Constraint("Parallel", 22, 30))
sketch1.addConstraint(Sketcher.Constraint("Parallel", 32, 33))
sketch1.addConstraint(Sketcher.Constraint("Parallel", 27, 35))
sketch1.addConstraint(Sketcher.Constraint("Parallel", 35, 36))
sketch1.addConstraint(Sketcher.Constraint("Parallel", 33, 41))
sketch1.addConstraint(Sketcher.Constraint("Parallel", 41, 42))
sketch1.addConstraint(Sketcher.Constraint("Parallel", 38, 46))
sketch1.addConstraint(Sketcher.Constraint("Parallel", 30, 48))
sketch1.addConstraint(Sketcher.Constraint("Parallel", 36, 53))
sketch1.addConstraint(Sketcher.Constraint("Parallel", 48, 55))
sketch1.addConstraint(Sketcher.Constraint("Parallel", 46, 57))
sketch1.addConstraint(Sketcher.Constraint("Parallel", 42, 59))
sketch1.addConstraint(Sketcher.Constraint("Parallel", 57, 64))
sketch1.addConstraint(Sketcher.Constraint("Parallel", 59, 68))
sketch1.addConstraint(Sketcher.Constraint("Parallel", 53, 70))
sketch1.addConstraint(Sketcher.Constraint("Horizontal", 5, 2, 6, 2))
sketch1.addConstraint(Sketcher.Constraint("Horizontal", 4, 2, 7, 2))
sketch1.addConstraint(Sketcher.Constraint("Horizontal", 3, 2, 8, 2))
sketch1.addConstraint(Sketcher.Constraint("Horizontal", 2, 2, 9, 2))
sketch1.addConstraint(Sketcher.Constraint("Horizontal", 1, 2, 10, 2))
sketch1.addConstraint(Sketcher.Constraint("Horizontal", 15, 2, 16, 2))
sketch1.addConstraint(Sketcher.Constraint("Horizontal", 14, 2, 17, 2))
sketch1.addConstraint(Sketcher.Constraint("Horizontal", 13, 2, 18, 2))
sketch1.addConstraint(Sketcher.Constraint("Horizontal", 12, 2, 19, 2))
sketch1.addConstraint(Sketcher.Constraint("Horizontal", 11, 2, 20, 2))
sketch1.addConstraint(Sketcher.Constraint("Horizontal", 10, 2, 23, 1))
sketch1.addConstraint(Sketcher.Constraint("Horizontal", 28, 2, 33, 2))
sketch1.addConstraint(Sketcher.Constraint("Horizontal", 31, 2, 36, 2))
sketch1.addConstraint(Sketcher.Constraint("Horizontal", 30, 2, 37, 2))
sketch1.addConstraint(Sketcher.Constraint("Horizontal", 29, 1, 38, 2))
sketch1.addConstraint(Sketcher.Constraint("Horizontal", 24, 2, 43, 2))
sketch1.addConstraint(Sketcher.Constraint("Horizontal", 22, 2, 45, 1))
sketch1.addConstraint(Sketcher.Constraint("Horizontal", 20, 2, 49, 1))
sketch1.addConstraint(Sketcher.Constraint("Horizontal", 55, 2, 56, 2))
sketch1.addConstraint(Sketcher.Constraint("Horizontal", 50, 2, 61, 2))
sketch1.addConstraint(Sketcher.Constraint("Horizontal", 48, 2, 63, 1))
sketch1.addConstraint(Sketcher.Constraint("Vertical", 10, 2, 11, 2))
sketch1.addConstraint(Sketcher.Constraint("Vertical", 9, 2, 12, 2))
sketch1.addConstraint(Sketcher.Constraint("Vertical", 8, 2, 13, 2))
sketch1.addConstraint(Sketcher.Constraint("Vertical", 7, 2, 14, 2))
sketch1.addConstraint(Sketcher.Constraint("Vertical", 6, 2, 15, 2))
sketch1.addConstraint(Sketcher.Constraint("Vertical", 46, 2, 47, 2))
sketch1.addConstraint(Sketcher.Constraint("Vertical", 38, 2, 54, 1))
sketch1.addConstraint(Sketcher.Constraint("Equal", 22, 30))
sketch1.addConstraint(Sketcher.Constraint("Diameter", 65, 5.0))
sketch1.addConstraint(Sketcher.Constraint("Diameter", 66, 3.0))
sketch1.addConstraint(Sketcher.Constraint("Radius", 0, 22.000002))
sketch1.addConstraint(Sketcher.Constraint("Radius", 21, 6.0))
sketch1.addConstraint(Sketcher.Constraint("Radius", 52, 4.5))
sketch1.addConstraint(Sketcher.Constraint("Angle", 22, Q("36 deg")))
sketch1.addConstraint(Sketcher.Constraint("Angle", 27, Q("72 deg")))
sketch1.addConstraint(Sketcher.Constraint("Radius", 23, 18.75))
sketch1.addConstraint(Sketcher.Constraint("DistanceY", 52, 3, -1, 1, 10.0))
sketch1.addConstraint(Sketcher.Constraint("DistanceY", -1, 1, 1, 2, 1.0))
sketch1.addConstraint(Sketcher.Constraint("DistanceY", -1, 1, 27, 2, 15.0))
sketch1.addConstraint(Sketcher.Constraint("DistanceY", -1, 1, 4, 2, 20.5926))
sketch1.addConstraint(Sketcher.Constraint("DistanceY", -1, 1, 30, 2, 4.286401))
sketch1.addConstraint(Sketcher.Constraint("Distance", 68, 5.227628))
sketch1.addConstraint(Sketcher.Constraint("DistanceX", 28, 1, 28, 2, 5.324742))
sketch1.addConstraint(Sketcher.Constraint("DistanceX", -1, 1, 5, 2, 5.840291))
sketch1.addConstraint(Sketcher.Constraint("DistanceX", -1, 1, 2, 2, 18.367763))
sketch1.addConstraint(Sketcher.Constraint("DistanceX", -1, 1, 3, 2, 17.192192))
sketch1.addConstraint(Sketcher.Constraint("DistanceX", -1, 1, 25, 2, 2.346205))
pad1 = body.newObject("PartDesign::Pad", "Pad")
pad1.Profile = sketch1
pad1.Length = 6

sketch2 = body.newObject("Sketcher::SketchObject", "Sketch001")
sketch2.AttachmentSupport = (doc.getObject("XY_Plane"), [""])
sketch2.MapMode = "FlatFace"
sketch2.addGeometry(Part.Circle(Vector(0, 0, 0), Vector(0, 0, 1), 24), False)
sketch2.addGeometry(Part.Circle(Vector(0, 0, 0), Vector(0, 0, 1), 22), False)
sketch2.addConstraint(Sketcher.Constraint("Coincident", 0, 3, -1, 1))
sketch2.addConstraint(Sketcher.Constraint("Coincident", 1, 3, -1, 1))
sketch2.addConstraint(Sketcher.Constraint("Diameter", 0, 48.0))
sketch2.addConstraint(Sketcher.Constraint("Diameter", 1, 44.0))
pad2 = body.newObject("PartDesign::Pad", "Pad001")
pad2.Profile = sketch2
pad2.Length = 1.5

doc.recompute()
